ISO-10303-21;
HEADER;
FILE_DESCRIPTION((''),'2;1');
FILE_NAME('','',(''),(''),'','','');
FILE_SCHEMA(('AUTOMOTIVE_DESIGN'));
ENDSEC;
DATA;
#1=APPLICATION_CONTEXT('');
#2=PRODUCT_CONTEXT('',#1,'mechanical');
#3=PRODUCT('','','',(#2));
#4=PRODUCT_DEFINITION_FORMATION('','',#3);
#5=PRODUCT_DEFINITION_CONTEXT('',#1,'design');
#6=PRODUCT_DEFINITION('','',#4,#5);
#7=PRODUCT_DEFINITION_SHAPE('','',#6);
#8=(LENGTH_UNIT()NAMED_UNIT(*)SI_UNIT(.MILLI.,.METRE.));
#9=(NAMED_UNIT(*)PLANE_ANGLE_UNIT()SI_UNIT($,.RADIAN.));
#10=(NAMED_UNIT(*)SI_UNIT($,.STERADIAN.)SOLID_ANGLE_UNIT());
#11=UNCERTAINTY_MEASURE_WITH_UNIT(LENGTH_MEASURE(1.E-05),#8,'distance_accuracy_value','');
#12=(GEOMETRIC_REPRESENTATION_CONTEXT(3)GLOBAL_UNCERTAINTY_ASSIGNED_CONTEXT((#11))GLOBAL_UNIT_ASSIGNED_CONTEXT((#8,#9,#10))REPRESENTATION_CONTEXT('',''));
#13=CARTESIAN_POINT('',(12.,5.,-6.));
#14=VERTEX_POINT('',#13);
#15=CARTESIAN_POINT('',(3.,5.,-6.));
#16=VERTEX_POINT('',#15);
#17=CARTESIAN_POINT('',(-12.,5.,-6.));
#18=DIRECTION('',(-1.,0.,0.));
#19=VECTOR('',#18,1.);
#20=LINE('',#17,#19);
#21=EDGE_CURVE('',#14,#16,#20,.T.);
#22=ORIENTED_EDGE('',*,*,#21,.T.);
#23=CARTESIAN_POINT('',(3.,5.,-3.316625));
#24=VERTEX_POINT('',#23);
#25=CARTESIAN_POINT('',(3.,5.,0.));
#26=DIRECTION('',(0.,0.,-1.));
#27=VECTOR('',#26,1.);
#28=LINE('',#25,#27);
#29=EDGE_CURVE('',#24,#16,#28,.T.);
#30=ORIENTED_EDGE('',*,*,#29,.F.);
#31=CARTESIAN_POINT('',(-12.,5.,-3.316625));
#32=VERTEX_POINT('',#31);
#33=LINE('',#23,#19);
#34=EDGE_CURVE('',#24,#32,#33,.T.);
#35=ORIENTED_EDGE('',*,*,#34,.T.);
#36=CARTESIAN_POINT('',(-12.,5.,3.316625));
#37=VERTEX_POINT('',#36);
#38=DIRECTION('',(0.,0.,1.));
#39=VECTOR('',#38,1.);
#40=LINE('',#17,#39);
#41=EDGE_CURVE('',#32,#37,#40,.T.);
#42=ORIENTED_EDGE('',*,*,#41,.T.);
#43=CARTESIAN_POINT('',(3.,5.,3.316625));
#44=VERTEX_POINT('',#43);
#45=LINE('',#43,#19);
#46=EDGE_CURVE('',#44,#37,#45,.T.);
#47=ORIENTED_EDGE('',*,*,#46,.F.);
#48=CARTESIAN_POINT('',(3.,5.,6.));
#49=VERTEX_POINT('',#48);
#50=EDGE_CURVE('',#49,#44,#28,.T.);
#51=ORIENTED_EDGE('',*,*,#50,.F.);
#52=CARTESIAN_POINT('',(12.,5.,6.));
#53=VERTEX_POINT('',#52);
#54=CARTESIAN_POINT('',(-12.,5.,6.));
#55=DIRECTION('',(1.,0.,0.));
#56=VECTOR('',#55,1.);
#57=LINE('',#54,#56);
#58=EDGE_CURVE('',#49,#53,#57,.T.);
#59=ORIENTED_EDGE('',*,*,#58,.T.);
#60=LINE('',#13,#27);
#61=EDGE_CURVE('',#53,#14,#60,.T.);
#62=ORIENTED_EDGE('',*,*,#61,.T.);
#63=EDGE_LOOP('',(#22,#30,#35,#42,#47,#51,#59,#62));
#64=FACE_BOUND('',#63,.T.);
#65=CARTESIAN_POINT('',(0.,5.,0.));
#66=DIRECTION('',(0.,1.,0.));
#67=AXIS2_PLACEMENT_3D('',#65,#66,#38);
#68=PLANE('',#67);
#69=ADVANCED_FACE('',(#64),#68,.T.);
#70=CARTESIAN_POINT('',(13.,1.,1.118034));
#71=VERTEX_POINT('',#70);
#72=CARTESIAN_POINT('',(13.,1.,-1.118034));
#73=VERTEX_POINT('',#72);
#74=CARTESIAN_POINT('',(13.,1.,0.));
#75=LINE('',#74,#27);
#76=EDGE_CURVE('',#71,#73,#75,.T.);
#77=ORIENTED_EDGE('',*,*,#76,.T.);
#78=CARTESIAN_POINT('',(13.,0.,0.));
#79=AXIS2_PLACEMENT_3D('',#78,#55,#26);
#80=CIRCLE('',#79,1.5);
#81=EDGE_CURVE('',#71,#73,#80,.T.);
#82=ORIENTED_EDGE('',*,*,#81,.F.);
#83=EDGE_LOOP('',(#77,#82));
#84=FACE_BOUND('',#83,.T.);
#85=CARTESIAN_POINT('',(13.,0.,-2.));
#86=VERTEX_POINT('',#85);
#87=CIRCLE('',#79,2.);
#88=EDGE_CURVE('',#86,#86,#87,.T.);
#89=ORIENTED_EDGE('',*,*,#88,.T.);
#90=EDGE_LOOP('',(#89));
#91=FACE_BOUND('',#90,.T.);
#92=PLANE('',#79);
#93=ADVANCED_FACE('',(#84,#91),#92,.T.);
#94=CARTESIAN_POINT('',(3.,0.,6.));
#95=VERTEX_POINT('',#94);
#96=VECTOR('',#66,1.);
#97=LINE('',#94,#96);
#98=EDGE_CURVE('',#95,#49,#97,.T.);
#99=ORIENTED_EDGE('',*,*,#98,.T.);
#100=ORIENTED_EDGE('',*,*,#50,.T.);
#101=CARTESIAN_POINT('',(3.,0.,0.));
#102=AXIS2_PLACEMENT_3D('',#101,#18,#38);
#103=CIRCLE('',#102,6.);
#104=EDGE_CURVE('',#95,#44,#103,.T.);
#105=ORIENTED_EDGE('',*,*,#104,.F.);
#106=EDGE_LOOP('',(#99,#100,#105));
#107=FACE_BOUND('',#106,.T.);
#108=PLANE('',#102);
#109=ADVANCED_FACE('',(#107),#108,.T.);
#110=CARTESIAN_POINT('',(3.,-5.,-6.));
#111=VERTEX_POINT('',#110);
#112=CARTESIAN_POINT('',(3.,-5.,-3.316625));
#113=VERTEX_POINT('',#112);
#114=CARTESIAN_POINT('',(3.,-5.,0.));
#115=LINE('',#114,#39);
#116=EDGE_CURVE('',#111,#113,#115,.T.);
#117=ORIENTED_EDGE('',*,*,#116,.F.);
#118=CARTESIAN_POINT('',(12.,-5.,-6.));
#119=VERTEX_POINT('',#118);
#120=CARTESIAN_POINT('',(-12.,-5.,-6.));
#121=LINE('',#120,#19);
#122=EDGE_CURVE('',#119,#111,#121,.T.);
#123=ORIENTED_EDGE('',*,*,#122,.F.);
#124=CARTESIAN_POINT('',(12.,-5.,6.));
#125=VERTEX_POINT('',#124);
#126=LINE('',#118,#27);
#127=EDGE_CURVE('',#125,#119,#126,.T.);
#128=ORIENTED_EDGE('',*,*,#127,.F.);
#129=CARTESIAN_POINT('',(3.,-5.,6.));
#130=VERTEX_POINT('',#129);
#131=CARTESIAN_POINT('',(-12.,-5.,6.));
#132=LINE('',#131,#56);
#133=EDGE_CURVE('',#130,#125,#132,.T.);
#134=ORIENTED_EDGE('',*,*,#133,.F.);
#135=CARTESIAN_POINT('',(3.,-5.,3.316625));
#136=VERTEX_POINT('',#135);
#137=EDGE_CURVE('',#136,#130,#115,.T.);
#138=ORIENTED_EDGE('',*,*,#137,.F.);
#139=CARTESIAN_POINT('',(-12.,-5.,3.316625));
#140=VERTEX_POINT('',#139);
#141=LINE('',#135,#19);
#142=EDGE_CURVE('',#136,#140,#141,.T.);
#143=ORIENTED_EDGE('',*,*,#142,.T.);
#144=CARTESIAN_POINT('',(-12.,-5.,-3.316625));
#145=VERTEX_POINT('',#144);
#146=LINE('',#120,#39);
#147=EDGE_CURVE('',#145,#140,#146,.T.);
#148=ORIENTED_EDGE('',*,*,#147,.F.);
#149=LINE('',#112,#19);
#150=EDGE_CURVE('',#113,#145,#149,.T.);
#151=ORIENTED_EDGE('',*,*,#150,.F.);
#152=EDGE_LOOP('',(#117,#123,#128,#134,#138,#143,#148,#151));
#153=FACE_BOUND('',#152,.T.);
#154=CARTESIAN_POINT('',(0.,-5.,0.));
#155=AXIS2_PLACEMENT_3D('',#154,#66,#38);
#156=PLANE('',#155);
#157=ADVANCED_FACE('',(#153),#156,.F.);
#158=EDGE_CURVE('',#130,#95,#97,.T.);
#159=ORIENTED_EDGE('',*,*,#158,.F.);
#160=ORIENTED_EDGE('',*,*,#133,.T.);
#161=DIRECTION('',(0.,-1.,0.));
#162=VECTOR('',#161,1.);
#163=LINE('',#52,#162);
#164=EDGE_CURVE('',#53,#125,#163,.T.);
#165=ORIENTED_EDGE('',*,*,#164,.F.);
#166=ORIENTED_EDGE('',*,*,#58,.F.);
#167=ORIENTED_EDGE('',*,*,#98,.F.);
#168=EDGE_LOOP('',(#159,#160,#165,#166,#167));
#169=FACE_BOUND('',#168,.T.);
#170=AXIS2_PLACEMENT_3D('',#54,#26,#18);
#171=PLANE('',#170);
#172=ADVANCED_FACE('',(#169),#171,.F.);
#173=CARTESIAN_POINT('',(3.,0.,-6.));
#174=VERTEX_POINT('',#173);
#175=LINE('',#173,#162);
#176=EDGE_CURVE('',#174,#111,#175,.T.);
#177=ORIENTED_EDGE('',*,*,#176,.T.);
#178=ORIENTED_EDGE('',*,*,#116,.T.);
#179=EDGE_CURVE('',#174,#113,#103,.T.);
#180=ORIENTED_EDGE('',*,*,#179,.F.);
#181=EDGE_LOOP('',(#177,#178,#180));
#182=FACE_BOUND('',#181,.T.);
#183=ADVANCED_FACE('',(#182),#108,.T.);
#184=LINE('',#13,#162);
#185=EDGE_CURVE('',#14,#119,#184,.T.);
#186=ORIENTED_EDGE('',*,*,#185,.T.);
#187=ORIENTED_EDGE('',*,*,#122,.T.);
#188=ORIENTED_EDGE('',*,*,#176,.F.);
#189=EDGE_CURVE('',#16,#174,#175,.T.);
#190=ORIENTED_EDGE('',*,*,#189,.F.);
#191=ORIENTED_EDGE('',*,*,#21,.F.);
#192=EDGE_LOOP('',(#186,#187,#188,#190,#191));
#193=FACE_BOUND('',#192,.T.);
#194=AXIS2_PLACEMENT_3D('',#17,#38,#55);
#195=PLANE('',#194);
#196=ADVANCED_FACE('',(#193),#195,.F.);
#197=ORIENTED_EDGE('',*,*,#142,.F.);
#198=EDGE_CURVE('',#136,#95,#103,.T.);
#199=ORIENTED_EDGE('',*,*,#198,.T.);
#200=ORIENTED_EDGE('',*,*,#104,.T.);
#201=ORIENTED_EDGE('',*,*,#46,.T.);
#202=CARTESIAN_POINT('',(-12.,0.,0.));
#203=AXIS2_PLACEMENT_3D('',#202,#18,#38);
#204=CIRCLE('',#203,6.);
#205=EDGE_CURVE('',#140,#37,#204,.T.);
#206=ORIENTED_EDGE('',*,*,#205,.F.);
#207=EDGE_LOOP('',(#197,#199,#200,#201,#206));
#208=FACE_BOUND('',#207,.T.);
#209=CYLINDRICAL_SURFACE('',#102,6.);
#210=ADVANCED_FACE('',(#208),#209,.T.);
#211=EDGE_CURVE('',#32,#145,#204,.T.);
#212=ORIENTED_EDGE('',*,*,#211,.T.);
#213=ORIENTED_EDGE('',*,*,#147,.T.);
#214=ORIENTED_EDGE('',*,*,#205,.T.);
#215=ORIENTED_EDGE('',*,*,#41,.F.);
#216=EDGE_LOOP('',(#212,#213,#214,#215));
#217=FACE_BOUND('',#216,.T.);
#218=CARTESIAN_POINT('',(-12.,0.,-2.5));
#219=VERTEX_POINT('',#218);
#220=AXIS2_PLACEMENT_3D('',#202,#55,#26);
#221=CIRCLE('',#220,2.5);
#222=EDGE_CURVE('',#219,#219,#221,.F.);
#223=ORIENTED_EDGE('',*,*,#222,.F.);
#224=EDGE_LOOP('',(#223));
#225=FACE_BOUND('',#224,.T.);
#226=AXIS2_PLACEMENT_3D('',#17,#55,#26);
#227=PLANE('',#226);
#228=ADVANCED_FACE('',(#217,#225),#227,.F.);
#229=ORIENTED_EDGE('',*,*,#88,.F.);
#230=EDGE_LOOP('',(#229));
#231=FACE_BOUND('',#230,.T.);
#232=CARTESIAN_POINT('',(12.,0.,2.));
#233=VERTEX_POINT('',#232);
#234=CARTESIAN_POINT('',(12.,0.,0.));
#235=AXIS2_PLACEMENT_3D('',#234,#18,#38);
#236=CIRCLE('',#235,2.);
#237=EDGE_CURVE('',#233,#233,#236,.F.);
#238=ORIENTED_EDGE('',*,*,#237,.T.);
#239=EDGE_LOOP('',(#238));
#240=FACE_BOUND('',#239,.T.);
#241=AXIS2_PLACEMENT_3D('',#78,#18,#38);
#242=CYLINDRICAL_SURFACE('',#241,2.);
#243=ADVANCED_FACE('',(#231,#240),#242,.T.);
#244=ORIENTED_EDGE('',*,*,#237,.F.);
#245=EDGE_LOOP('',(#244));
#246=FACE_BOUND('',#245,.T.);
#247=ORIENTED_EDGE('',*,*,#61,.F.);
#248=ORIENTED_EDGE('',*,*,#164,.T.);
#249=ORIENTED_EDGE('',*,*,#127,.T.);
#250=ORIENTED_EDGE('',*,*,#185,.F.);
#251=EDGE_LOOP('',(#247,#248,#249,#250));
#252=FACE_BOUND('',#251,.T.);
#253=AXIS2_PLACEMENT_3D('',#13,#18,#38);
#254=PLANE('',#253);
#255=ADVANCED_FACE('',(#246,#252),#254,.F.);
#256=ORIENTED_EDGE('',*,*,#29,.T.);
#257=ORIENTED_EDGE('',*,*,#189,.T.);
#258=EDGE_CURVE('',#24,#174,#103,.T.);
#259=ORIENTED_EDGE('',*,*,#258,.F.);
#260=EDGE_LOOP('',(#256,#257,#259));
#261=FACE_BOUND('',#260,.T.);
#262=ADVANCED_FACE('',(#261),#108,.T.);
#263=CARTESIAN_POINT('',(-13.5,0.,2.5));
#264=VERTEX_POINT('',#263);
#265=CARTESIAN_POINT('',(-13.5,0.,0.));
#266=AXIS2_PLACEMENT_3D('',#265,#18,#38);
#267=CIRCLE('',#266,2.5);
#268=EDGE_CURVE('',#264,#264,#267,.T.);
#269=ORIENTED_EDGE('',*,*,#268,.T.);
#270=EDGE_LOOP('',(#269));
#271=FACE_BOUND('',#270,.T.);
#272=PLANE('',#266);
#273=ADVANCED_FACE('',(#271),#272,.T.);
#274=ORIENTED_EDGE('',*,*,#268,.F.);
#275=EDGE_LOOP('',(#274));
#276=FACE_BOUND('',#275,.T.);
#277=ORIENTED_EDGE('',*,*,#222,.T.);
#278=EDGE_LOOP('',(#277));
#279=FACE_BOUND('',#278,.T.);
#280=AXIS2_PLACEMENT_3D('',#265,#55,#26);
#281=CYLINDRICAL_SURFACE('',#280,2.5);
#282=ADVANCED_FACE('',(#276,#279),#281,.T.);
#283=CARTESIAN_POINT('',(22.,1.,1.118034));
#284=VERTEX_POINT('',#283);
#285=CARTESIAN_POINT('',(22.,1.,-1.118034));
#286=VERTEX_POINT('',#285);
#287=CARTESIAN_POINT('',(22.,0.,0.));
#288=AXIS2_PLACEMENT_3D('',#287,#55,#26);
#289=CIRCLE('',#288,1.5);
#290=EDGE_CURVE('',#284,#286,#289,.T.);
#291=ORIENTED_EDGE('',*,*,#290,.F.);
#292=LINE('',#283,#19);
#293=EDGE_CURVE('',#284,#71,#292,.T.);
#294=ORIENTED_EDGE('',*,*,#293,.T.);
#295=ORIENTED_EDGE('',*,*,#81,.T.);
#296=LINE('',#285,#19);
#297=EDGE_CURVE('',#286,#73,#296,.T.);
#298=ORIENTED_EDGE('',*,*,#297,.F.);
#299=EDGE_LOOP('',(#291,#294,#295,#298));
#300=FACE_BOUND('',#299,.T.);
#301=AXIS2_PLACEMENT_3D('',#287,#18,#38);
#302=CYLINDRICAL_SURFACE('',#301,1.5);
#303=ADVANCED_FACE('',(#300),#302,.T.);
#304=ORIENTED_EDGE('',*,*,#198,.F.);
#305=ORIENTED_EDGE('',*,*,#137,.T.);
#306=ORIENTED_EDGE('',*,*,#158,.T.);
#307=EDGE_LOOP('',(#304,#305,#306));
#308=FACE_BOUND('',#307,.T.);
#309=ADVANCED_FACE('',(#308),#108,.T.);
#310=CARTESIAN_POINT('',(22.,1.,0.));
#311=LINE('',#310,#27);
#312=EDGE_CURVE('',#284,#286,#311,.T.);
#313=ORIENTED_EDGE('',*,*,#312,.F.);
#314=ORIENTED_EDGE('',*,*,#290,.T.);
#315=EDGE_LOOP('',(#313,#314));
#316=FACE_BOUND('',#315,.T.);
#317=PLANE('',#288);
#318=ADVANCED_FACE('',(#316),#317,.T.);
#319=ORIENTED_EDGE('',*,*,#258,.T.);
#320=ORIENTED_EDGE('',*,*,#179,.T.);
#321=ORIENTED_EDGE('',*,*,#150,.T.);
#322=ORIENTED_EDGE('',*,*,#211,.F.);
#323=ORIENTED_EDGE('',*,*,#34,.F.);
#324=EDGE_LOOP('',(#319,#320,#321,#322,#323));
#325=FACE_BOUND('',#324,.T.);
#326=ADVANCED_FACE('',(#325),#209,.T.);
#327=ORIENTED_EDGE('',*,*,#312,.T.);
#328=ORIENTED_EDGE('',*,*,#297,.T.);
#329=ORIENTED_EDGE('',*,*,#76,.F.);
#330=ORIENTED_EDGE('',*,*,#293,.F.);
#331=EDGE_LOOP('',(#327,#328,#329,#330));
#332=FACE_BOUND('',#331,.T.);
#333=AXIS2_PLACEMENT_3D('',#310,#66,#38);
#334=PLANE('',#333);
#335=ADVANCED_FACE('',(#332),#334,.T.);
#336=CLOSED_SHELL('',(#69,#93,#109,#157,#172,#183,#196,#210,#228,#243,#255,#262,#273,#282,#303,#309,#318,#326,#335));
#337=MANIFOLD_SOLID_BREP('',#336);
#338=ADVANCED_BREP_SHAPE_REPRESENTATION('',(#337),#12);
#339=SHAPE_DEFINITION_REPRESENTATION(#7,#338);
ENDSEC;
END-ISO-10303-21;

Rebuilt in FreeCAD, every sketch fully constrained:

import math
import FreeCAD as App
import Part
import Sketcher

V = App.Vector
Q = App.Units.Quantity


def add_polygon(sketch, points):
    """Adds a closed chain of lines whose ends are joined by coincident constraints."""
    first, n = sketch.GeometryCount, len(points)
    for a, b in zip(points, points[1:] + points[:1]):
        sketch.addGeometry(Part.LineSegment(App.Vector(*a, 0), App.Vector(*b, 0)), False)
    for i in range(n):
        sketch.addConstraint(Sketcher.Constraint("Coincident", first + i, 2, first + (i + 1) % n, 1))

doc = App.newDocument("Part")
body = doc.addObject("PartDesign::Body", "Body")

# Sketch on XZ plane
sketch1 = body.newObject("Sketcher::SketchObject", "Sketch")
sketch1.AttachmentSupport = (doc.getObject("XZ_Plane"), [""])
sketch1.MapMode = "FlatFace"
add_polygon(sketch1, [(-12, -6), (-12, 6), (12, 6), (12, -6)])  # lines 0-3
sketch1.addConstraint([
    Sketcher.Constraint("Vertical", 0),
    Sketcher.Constraint("Horizontal", 1),
    Sketcher.Constraint("Vertical", 2),
    Sketcher.Constraint("Horizontal", 3),
    Sketcher.Constraint("Symmetric", 0, 2, 2, 2, -1, 1),
    Sketcher.Constraint("DistanceX", 1, 1, 1, 2, Q("24 mm")),
    Sketcher.Constraint("DistanceY", 0, 1, 0, 2, Q("12 mm")),
])
pad1 = body.newObject("PartDesign::Pad", "Pad")
pad1.Profile = sketch1
pad1.Length = 10
pad1.Midplane = True

# Sketch on YZ plane
sketch2 = body.newObject("Sketcher::SketchObject", "Sketch001")
sketch2.AttachmentSupport = (doc.getObject("YZ_Plane"), [""])
sketch2.MapMode = "FlatFace"
sketch2.AttachmentOffset = App.Placement(V(0, 0, -12), App.Rotation())
sketch2.addGeometry([
    Part.ArcOfCircle(Part.Circle(V(0, 0, 0), V(0, 0, 1), 6), math.radians(-90), math.radians(-34)),  # 0
    Part.LineSegment(V(5, -3.3, 0), V(5, -6, 0)),  # 1
    Part.LineSegment(V(5, -6, 0), V(0, -6, 0)),  # 2
    Part.LineSegment(V(-5, -6, 0), V(-5, -3.3, 0)),  # 3
    Part.ArcOfCircle(Part.Circle(V(0, 0, 0), V(0, 0, 1), 6), math.radians(-146), math.radians(-90)),  # 4
    Part.LineSegment(V(0, -6, 0), V(-5, -6, 0)),  # 5
    Part.ArcOfCircle(Part.Circle(V(0, 0, 0), V(0, 0, 1), 6), math.radians(34), math.radians(90)),  # 6
    Part.LineSegment(V(0, 6, 0), V(5, 6, 0)),  # 7
    Part.LineSegment(V(5, 6, 0), V(5, 3.3, 0)),  # 8
    Part.LineSegment(V(-5, 6, 0), V(0, 6, 0)),  # 9
    Part.ArcOfCircle(Part.Circle(V(0, 0, 0), V(0, 0, 1), 6), math.radians(90), math.radians(146)),  # 10
    Part.LineSegment(V(-5, 3.3, 0), V(-5, 6, 0)),  # 11
], False)
sketch2.addConstraint([
    Sketcher.Constraint("Coincident", 0, 2, 1, 1),
    Sketcher.Constraint("Coincident", 1, 2, 2, 1),
    Sketcher.Constraint("Tangent", 2, 2, 0, 1),
    Sketcher.Constraint("Coincident", 3, 2, 4, 1),
    Sketcher.Constraint("Tangent", 4, 2, 5, 1),
    Sketcher.Constraint("Coincident", 5, 2, 3, 1),
    Sketcher.Constraint("Tangent", 6, 2, 7, 1),
    Sketcher.Constraint("Coincident", 7, 2, 8, 1),
    Sketcher.Constraint("Coincident", 8, 2, 6, 1),
    Sketcher.Constraint("Tangent", 9, 2, 10, 1),
    Sketcher.Constraint("Coincident", 10, 2, 11, 1),
    Sketcher.Constraint("Coincident", 11, 2, 9, 1),
    Sketcher.Constraint("Vertical", 1),
    Sketcher.Constraint("Horizontal", 2),
    Sketcher.Constraint("Vertical", 3),
    Sketcher.Constraint("Horizontal", 5),
    Sketcher.Constraint("Horizontal", 7),
    Sketcher.Constraint("Vertical", 8),
    Sketcher.Constraint("Horizontal", 9),
    Sketcher.Constraint("Vertical", 11),
    Sketcher.Constraint("Coincident", 0, 3, -1, 1),
    Sketcher.Constraint("Coincident", 4, 3, -1, 1),
    Sketcher.Constraint("Coincident", 6, 3, -1, 1),
    Sketcher.Constraint("Coincident", 10, 3, -1, 1),
    Sketcher.Constraint("Equal", 0, 4),
    Sketcher.Constraint("Equal", 4, 6),
    Sketcher.Constraint("Equal", 6, 10),
    Sketcher.Constraint("Horizontal", 0, 2, 3, 2),
    Sketcher.Constraint("Horizontal", 8, 2, 10, 2),
    Sketcher.Constraint("Vertical", 1, 2, 7, 2),
    Sketcher.Constraint("Radius", 0, Q("6 mm")),
    Sketcher.Constraint("DistanceX", 2, 2, 2, 1, Q("5 mm")),
])
pocket1 = body.newObject("PartDesign::Pocket", "Pocket")
pocket1.Profile = sketch2
pocket1.Length = 15
pocket1.Reversed = True

# Sketch on YZ plane
sketch3 = body.newObject("Sketcher::SketchObject", "Sketch002")
sketch3.AttachmentSupport = (doc.getObject("YZ_Plane"), [""])
sketch3.MapMode = "FlatFace"
sketch3.AttachmentOffset = App.Placement(V(0, 0, -12), App.Rotation())
sketch3.addGeometry(Part.Circle(V(0, 0, 0), V(0, 0, 1), 2.5), False)
sketch3.addConstraint([
    Sketcher.Constraint("Coincident", 0, 3, -1, 1),
    Sketcher.Constraint("Diameter", 0, Q("5 mm")),
])
pad2 = body.newObject("PartDesign::Pad", "Pad001")
pad2.Profile = sketch3
pad2.Length = 1.5
pad2.Reversed = True

# Sketch on YZ plane
sketch4 = body.newObject("Sketcher::SketchObject", "Sketch003")
sketch4.AttachmentSupport = (doc.getObject("YZ_Plane"), [""])
sketch4.MapMode = "FlatFace"
sketch4.AttachmentOffset = App.Placement(V(0, 0, 12), App.Rotation())
sketch4.addGeometry(Part.Circle(V(0, 0, 0), V(0, 0, 1), 2), False)
sketch4.addConstraint([
    Sketcher.Constraint("Coincident", 0, 3, -1, 1),
    Sketcher.Constraint("Diameter", 0, Q("4 mm")),
])
pad3 = body.newObject("PartDesign::Pad", "Pad002")
pad3.Profile = sketch4
pad3.Length = 1

# Sketch on YZ plane
sketch5 = body.newObject("Sketcher::SketchObject", "Sketch004")
sketch5.AttachmentSupport = (doc.getObject("YZ_Plane"), [""])
sketch5.MapMode = "FlatFace"
sketch5.AttachmentOffset = App.Placement(V(0, 0, 13), App.Rotation())
sketch5.addGeometry([
    Part.LineSegment(V(1, -1.1, 0), V(1, 1.1, 0)),
    Part.ArcOfCircle(Part.Circle(V(0, 0, 0), V(0, 0, 1), 1.5), math.radians(48), math.radians(270)),
    Part.ArcOfCircle(Part.Circle(V(0, 0, 0), V(0, 0, 1), 1.5), math.radians(-90), math.radians(-48)),
], False)
sketch5.addConstraint([
    Sketcher.Constraint("Coincident", 0, 2, 1, 1),
    Sketcher.Constraint("Tangent", 1, 2, 2, 1),
    Sketcher.Constraint("Coincident", 2, 2, 0, 1),
    Sketcher.Constraint("Vertical", 0),
    Sketcher.Constraint("Coincident", 1, 3, -1, 1),
    Sketcher.Constraint("Equal", 1, 2),
    Sketcher.Constraint("PointOnObject", 1, 2, -2),
    Sketcher.Constraint("Radius", 1, Q("1.5 mm")),
    Sketcher.Constraint("DistanceX", -1, 1, 0, 2, Q("1 mm")),
])
pad4 = body.newObject("PartDesign::Pad", "Pad003")
pad4.Profile = sketch5
pad4.Length = 9

doc.recompute()
